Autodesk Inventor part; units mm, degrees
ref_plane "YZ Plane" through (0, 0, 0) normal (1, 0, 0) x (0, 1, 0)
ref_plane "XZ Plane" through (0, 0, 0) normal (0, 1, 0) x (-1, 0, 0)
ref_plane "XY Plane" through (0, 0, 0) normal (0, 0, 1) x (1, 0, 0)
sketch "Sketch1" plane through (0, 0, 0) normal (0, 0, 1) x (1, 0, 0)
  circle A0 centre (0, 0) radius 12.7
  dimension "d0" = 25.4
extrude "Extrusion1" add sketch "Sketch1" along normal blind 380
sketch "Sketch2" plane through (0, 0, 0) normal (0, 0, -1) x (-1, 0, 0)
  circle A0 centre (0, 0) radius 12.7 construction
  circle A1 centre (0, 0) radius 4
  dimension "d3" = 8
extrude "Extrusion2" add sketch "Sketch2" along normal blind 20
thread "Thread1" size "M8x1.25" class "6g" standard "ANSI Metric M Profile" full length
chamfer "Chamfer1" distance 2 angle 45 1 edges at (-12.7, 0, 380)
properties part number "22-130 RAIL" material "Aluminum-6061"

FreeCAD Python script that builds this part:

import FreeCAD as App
import Part
import Sketcher


def edges_at(feature, points):
    """Names of the edges that pass closest to the given points."""
    edges = feature.Shape.Edges
    near = lambda p: min(range(len(edges)), key=lambda i: edges[i].distToShape(Part.Vertex(*p))[0])
    return sorted({f"Edge{near(p) + 1}" for p in points})

doc = App.newDocument("Part")
params = doc.addObject("Spreadsheet::Sheet", "Params")
for row, (alias, value) in enumerate([
    ("sketch1_diameter", "25.4 mm"),
    ("pad1_length", "380 mm"),
    ("sketch2_diameter", "8 mm"),
    ("pad2_length", "20 mm"),
    ("chamfer_size", "2 mm"),
], start=1):
    params.set(f"A{row}", alias)
    params.set(f"B{row}", "=" + value)
    params.setAlias(f"B{row}", alias)

body = doc.addObject("PartDesign::Body", "Body")

sketch1 = doc.addObject("Sketcher::SketchObject", "Sketch")
body.addObject(sketch1)
sketch1.AttachmentSupport = (doc.XY_Plane, [""])
sketch1.MapMode = "FlatFace"
sketch1.addGeometry(Part.Circle(App.Vector(0, 0, 0), App.Vector(0, 0, 1), 13), False)
sketch1.addConstraint([
    Sketcher.Constraint("Coincident", 0, 3, -1, 1),
    Sketcher.Constraint("Diameter", 0, 25.4),
])
sketch1.setExpression("Constraints[1]", "Params.sketch1_diameter")
pad1 = doc.addObject("PartDesign::Pad", "Pad")
body.addObject(pad1)
pad1.Profile = sketch1
pad1.setExpression("Length", "Params.pad1_length")

sketch2 = doc.addObject("Sketcher::SketchObject", "Sketch001")
body.addObject(sketch2)
sketch2.AttachmentSupport = (doc.XY_Plane, [""])
sketch2.MapMode = "FlatFace"
sketch2.addGeometry(Part.Circle(App.Vector(0, 0, 0), App.Vector(0, 0, 1), 4), False)
sketch2.addConstraint([
    Sketcher.Constraint("Coincident", 0, 3, -1, 1),
    Sketcher.Constraint("Diameter", 0, 8.0),
])
sketch2.setExpression("Constraints[1]", "Params.sketch2_diameter")
pad2 = doc.addObject("PartDesign::Pad", "Pad001")
body.addObject(pad2)
pad2.Profile = sketch2
pad2.setExpression("Length", "Params.pad2_length")
pad2.Reversed = True
doc.recompute()

chamfer = doc.addObject("PartDesign::Chamfer", "Chamfer")
body.addObject(chamfer)
chamfer.Base = (pad2, edges_at(pad2, [(-12.7, 0, 380)]))
chamfer.setExpression("Size", "Params.chamfer_size")

doc.recompute()
